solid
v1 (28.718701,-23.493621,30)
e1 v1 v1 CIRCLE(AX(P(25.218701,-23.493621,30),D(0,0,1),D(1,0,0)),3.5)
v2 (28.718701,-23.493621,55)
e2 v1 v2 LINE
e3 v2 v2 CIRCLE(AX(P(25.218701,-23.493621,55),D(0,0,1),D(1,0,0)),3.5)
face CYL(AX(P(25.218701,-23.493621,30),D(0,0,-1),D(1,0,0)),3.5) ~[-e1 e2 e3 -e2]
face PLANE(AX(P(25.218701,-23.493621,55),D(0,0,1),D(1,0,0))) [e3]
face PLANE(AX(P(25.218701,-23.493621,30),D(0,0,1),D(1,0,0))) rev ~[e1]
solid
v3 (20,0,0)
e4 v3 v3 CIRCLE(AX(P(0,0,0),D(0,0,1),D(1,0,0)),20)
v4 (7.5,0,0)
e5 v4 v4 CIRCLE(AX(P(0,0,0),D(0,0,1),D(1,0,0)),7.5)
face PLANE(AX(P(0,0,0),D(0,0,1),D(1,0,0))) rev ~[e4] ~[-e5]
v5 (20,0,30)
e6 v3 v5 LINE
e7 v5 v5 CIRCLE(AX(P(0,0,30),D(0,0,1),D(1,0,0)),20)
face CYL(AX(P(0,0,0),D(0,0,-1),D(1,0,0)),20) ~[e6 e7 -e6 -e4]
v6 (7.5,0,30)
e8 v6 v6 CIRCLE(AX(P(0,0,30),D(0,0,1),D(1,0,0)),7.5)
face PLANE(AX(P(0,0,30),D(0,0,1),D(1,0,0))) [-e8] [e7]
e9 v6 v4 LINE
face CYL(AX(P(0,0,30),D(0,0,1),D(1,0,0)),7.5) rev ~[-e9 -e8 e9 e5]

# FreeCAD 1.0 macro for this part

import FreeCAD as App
import Part
import Sketcher

V = App.Vector

doc = App.newDocument("Part")
body = doc.addObject("PartDesign::Body", "Body")

# Sketch on XY plane
sketch1 = body.newObject("Sketcher::SketchObject", "Sketch")
sketch1.AttachmentSupport = (doc.getObject("XY_Plane"), [""])
sketch1.MapMode = "FlatFace"
sketch1.addGeometry(Part.Circle(V(0, 0, 0), V(0, 0, 1), 20), False)
sketch1.addConstraint(Sketcher.Constraint("Coincident", 0, 3, -1, 1))
sketch1.addConstraint(Sketcher.Constraint("Diameter", 0, 40.0))
pad1 = body.newObject("PartDesign::Pad", "Pad")
pad1.Profile = sketch1
pad1.Length = 30

# Sketch on XY plane
sketch2 = body.newObject("Sketcher::SketchObject", "Sketch001")
sketch2.AttachmentSupport = (doc.getObject("XY_Plane"), [""])
sketch2.MapMode = "FlatFace"
sketch2.AttachmentOffset = App.Placement(V(0, 0, 30), App.Rotation())
sketch2.addGeometry(Part.Circle(V(0, 0, 0), V(0, 0, 1), 8), False)
sketch2.addConstraint(Sketcher.Constraint("Coincident", 0, 3, -1, 1))
sketch2.addConstraint(Sketcher.Constraint("Diameter", 0, 15.0))
pocket1 = body.newObject("PartDesign::Pocket", "Pocket")
pocket1.Profile = sketch2
pocket1.Type = "ThroughAll"
body2 = doc.addObject("PartDesign::Body", "Body001")

# Sketch on XY plane
sketch3 = body2.newObject("Sketcher::SketchObject", "Sketch002")
sketch3.AttachmentSupport = (doc.getObject("XY_Plane001"), [""])
sketch3.MapMode = "FlatFace"
sketch3.AttachmentOffset = App.Placement(V(0, 0, 30), App.Rotation())
sketch3.addGeometry(Part.Circle(V(25.2, -23.5, 0), V(0, 0, 1), 3.5), False)
sketch3.addConstraint(Sketcher.Constraint("Diameter", 0, 7.0))
sketch3.addConstraint(Sketcher.Constraint("DistanceX", -1, 1, 0, 3, 25.218701))
sketch3.addConstraint(Sketcher.Constraint("DistanceY", 0, 3, -1, 1, 23.493621))
pad2 = body2.newObject("PartDesign::Pad", "Pad001")
pad2.Profile = sketch3
pad2.Length = 25

doc.recompute()
